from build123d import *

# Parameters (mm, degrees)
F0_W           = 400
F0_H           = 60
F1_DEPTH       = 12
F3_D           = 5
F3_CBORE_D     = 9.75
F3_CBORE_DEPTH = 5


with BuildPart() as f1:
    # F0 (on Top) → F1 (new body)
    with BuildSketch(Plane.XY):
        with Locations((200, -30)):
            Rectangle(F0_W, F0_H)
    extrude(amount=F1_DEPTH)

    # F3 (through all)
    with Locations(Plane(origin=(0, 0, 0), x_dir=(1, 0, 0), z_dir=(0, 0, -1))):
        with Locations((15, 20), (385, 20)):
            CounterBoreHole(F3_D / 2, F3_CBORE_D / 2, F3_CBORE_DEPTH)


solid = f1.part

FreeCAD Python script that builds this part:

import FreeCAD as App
import Part
import Sketcher

V = App.Vector
Q = App.Units.Quantity


def add_polygon(sketch, points):
    """Adds a closed chain of lines whose ends are joined by coincident constraints."""
    first, n = sketch.GeometryCount, len(points)
    for a, b in zip(points, points[1:] + points[:1]):
        sketch.addGeometry(Part.LineSegment(App.Vector(*a, 0), App.Vector(*b, 0)), False)
    for i in range(n):
        sketch.addConstraint(Sketcher.Constraint("Coincident", first + i, 2, first + (i + 1) % n, 1))

doc = App.newDocument("Part")
body = doc.addObject("PartDesign::Body", "Body")

# Sketch on XY plane
sketch1 = body.newObject("Sketcher::SketchObject", "Sketch")
sketch1.AttachmentSupport = (doc.getObject("XY_Plane"), [""])
sketch1.MapMode = "FlatFace"
add_polygon(sketch1, [(0, 0), (0, -60), (400, -60), (400, 0)])  # lines 0-3
sketch1.addConstraint(Sketcher.Constraint("Vertical", 0))
sketch1.addConstraint(Sketcher.Constraint("Horizontal", 1))
sketch1.addConstraint(Sketcher.Constraint("Vertical", 2))
sketch1.addConstraint(Sketcher.Constraint("Horizontal", 3))
sketch1.addConstraint(Sketcher.Constraint("Coincident", 3, 2, -1, 1))
sketch1.addConstraint(Sketcher.Constraint("DistanceX", 1, 1, 1, 2, Q("400 mm")))
sketch1.addConstraint(Sketcher.Constraint("DistanceY", 0, 2, 0, 1, Q("60 mm")))
pad1 = body.newObject("PartDesign::Pad", "Pad")
pad1.Profile = sketch1
pad1.Length = 12

# Sketch on XY plane
sketch2 = body.newObject("Sketcher::SketchObject", "Sketch001")
sketch2.AttachmentSupport = (doc.getObject("XY_Plane"), [""])
sketch2.MapMode = "FlatFace"
sketch2.addGeometry(Part.Circle(V(15, -20, 0), V(0, 0, 1), 2.5), False)
sketch2.addGeometry(Part.Circle(V(385, -20, 0), V(0, 0, 1), 2.5), False)
sketch2.addConstraint(Sketcher.Constraint("Equal", 0, 1))
sketch2.addConstraint(Sketcher.Constraint("Horizontal", 0, 3, 1, 3))
sketch2.addConstraint(Sketcher.Constraint("Diameter", 0, Q("5 mm")))
sketch2.addConstraint(Sketcher.Constraint("DistanceX", -1, 1, 0, 3, Q("15 mm")))
sketch2.addConstraint(Sketcher.Constraint("DistanceY", 0, 3, -1, 1, Q("20 mm")))
sketch2.addConstraint(Sketcher.Constraint("DistanceX", -1, 1, 1, 3, Q("385 mm")))
doc.recompute()
hole = body.newObject("PartDesign::Hole", "Hole")
hole.Profile = sketch2
hole.ThreadType = "None"
hole.Diameter = 5
hole.DepthType = "ThroughAll"
hole.HoleCutType = "Counterbore"
hole.HoleCutDiameter = 9.75
hole.HoleCutDepth = 5
hole.Reversed = True

doc.recompute()
